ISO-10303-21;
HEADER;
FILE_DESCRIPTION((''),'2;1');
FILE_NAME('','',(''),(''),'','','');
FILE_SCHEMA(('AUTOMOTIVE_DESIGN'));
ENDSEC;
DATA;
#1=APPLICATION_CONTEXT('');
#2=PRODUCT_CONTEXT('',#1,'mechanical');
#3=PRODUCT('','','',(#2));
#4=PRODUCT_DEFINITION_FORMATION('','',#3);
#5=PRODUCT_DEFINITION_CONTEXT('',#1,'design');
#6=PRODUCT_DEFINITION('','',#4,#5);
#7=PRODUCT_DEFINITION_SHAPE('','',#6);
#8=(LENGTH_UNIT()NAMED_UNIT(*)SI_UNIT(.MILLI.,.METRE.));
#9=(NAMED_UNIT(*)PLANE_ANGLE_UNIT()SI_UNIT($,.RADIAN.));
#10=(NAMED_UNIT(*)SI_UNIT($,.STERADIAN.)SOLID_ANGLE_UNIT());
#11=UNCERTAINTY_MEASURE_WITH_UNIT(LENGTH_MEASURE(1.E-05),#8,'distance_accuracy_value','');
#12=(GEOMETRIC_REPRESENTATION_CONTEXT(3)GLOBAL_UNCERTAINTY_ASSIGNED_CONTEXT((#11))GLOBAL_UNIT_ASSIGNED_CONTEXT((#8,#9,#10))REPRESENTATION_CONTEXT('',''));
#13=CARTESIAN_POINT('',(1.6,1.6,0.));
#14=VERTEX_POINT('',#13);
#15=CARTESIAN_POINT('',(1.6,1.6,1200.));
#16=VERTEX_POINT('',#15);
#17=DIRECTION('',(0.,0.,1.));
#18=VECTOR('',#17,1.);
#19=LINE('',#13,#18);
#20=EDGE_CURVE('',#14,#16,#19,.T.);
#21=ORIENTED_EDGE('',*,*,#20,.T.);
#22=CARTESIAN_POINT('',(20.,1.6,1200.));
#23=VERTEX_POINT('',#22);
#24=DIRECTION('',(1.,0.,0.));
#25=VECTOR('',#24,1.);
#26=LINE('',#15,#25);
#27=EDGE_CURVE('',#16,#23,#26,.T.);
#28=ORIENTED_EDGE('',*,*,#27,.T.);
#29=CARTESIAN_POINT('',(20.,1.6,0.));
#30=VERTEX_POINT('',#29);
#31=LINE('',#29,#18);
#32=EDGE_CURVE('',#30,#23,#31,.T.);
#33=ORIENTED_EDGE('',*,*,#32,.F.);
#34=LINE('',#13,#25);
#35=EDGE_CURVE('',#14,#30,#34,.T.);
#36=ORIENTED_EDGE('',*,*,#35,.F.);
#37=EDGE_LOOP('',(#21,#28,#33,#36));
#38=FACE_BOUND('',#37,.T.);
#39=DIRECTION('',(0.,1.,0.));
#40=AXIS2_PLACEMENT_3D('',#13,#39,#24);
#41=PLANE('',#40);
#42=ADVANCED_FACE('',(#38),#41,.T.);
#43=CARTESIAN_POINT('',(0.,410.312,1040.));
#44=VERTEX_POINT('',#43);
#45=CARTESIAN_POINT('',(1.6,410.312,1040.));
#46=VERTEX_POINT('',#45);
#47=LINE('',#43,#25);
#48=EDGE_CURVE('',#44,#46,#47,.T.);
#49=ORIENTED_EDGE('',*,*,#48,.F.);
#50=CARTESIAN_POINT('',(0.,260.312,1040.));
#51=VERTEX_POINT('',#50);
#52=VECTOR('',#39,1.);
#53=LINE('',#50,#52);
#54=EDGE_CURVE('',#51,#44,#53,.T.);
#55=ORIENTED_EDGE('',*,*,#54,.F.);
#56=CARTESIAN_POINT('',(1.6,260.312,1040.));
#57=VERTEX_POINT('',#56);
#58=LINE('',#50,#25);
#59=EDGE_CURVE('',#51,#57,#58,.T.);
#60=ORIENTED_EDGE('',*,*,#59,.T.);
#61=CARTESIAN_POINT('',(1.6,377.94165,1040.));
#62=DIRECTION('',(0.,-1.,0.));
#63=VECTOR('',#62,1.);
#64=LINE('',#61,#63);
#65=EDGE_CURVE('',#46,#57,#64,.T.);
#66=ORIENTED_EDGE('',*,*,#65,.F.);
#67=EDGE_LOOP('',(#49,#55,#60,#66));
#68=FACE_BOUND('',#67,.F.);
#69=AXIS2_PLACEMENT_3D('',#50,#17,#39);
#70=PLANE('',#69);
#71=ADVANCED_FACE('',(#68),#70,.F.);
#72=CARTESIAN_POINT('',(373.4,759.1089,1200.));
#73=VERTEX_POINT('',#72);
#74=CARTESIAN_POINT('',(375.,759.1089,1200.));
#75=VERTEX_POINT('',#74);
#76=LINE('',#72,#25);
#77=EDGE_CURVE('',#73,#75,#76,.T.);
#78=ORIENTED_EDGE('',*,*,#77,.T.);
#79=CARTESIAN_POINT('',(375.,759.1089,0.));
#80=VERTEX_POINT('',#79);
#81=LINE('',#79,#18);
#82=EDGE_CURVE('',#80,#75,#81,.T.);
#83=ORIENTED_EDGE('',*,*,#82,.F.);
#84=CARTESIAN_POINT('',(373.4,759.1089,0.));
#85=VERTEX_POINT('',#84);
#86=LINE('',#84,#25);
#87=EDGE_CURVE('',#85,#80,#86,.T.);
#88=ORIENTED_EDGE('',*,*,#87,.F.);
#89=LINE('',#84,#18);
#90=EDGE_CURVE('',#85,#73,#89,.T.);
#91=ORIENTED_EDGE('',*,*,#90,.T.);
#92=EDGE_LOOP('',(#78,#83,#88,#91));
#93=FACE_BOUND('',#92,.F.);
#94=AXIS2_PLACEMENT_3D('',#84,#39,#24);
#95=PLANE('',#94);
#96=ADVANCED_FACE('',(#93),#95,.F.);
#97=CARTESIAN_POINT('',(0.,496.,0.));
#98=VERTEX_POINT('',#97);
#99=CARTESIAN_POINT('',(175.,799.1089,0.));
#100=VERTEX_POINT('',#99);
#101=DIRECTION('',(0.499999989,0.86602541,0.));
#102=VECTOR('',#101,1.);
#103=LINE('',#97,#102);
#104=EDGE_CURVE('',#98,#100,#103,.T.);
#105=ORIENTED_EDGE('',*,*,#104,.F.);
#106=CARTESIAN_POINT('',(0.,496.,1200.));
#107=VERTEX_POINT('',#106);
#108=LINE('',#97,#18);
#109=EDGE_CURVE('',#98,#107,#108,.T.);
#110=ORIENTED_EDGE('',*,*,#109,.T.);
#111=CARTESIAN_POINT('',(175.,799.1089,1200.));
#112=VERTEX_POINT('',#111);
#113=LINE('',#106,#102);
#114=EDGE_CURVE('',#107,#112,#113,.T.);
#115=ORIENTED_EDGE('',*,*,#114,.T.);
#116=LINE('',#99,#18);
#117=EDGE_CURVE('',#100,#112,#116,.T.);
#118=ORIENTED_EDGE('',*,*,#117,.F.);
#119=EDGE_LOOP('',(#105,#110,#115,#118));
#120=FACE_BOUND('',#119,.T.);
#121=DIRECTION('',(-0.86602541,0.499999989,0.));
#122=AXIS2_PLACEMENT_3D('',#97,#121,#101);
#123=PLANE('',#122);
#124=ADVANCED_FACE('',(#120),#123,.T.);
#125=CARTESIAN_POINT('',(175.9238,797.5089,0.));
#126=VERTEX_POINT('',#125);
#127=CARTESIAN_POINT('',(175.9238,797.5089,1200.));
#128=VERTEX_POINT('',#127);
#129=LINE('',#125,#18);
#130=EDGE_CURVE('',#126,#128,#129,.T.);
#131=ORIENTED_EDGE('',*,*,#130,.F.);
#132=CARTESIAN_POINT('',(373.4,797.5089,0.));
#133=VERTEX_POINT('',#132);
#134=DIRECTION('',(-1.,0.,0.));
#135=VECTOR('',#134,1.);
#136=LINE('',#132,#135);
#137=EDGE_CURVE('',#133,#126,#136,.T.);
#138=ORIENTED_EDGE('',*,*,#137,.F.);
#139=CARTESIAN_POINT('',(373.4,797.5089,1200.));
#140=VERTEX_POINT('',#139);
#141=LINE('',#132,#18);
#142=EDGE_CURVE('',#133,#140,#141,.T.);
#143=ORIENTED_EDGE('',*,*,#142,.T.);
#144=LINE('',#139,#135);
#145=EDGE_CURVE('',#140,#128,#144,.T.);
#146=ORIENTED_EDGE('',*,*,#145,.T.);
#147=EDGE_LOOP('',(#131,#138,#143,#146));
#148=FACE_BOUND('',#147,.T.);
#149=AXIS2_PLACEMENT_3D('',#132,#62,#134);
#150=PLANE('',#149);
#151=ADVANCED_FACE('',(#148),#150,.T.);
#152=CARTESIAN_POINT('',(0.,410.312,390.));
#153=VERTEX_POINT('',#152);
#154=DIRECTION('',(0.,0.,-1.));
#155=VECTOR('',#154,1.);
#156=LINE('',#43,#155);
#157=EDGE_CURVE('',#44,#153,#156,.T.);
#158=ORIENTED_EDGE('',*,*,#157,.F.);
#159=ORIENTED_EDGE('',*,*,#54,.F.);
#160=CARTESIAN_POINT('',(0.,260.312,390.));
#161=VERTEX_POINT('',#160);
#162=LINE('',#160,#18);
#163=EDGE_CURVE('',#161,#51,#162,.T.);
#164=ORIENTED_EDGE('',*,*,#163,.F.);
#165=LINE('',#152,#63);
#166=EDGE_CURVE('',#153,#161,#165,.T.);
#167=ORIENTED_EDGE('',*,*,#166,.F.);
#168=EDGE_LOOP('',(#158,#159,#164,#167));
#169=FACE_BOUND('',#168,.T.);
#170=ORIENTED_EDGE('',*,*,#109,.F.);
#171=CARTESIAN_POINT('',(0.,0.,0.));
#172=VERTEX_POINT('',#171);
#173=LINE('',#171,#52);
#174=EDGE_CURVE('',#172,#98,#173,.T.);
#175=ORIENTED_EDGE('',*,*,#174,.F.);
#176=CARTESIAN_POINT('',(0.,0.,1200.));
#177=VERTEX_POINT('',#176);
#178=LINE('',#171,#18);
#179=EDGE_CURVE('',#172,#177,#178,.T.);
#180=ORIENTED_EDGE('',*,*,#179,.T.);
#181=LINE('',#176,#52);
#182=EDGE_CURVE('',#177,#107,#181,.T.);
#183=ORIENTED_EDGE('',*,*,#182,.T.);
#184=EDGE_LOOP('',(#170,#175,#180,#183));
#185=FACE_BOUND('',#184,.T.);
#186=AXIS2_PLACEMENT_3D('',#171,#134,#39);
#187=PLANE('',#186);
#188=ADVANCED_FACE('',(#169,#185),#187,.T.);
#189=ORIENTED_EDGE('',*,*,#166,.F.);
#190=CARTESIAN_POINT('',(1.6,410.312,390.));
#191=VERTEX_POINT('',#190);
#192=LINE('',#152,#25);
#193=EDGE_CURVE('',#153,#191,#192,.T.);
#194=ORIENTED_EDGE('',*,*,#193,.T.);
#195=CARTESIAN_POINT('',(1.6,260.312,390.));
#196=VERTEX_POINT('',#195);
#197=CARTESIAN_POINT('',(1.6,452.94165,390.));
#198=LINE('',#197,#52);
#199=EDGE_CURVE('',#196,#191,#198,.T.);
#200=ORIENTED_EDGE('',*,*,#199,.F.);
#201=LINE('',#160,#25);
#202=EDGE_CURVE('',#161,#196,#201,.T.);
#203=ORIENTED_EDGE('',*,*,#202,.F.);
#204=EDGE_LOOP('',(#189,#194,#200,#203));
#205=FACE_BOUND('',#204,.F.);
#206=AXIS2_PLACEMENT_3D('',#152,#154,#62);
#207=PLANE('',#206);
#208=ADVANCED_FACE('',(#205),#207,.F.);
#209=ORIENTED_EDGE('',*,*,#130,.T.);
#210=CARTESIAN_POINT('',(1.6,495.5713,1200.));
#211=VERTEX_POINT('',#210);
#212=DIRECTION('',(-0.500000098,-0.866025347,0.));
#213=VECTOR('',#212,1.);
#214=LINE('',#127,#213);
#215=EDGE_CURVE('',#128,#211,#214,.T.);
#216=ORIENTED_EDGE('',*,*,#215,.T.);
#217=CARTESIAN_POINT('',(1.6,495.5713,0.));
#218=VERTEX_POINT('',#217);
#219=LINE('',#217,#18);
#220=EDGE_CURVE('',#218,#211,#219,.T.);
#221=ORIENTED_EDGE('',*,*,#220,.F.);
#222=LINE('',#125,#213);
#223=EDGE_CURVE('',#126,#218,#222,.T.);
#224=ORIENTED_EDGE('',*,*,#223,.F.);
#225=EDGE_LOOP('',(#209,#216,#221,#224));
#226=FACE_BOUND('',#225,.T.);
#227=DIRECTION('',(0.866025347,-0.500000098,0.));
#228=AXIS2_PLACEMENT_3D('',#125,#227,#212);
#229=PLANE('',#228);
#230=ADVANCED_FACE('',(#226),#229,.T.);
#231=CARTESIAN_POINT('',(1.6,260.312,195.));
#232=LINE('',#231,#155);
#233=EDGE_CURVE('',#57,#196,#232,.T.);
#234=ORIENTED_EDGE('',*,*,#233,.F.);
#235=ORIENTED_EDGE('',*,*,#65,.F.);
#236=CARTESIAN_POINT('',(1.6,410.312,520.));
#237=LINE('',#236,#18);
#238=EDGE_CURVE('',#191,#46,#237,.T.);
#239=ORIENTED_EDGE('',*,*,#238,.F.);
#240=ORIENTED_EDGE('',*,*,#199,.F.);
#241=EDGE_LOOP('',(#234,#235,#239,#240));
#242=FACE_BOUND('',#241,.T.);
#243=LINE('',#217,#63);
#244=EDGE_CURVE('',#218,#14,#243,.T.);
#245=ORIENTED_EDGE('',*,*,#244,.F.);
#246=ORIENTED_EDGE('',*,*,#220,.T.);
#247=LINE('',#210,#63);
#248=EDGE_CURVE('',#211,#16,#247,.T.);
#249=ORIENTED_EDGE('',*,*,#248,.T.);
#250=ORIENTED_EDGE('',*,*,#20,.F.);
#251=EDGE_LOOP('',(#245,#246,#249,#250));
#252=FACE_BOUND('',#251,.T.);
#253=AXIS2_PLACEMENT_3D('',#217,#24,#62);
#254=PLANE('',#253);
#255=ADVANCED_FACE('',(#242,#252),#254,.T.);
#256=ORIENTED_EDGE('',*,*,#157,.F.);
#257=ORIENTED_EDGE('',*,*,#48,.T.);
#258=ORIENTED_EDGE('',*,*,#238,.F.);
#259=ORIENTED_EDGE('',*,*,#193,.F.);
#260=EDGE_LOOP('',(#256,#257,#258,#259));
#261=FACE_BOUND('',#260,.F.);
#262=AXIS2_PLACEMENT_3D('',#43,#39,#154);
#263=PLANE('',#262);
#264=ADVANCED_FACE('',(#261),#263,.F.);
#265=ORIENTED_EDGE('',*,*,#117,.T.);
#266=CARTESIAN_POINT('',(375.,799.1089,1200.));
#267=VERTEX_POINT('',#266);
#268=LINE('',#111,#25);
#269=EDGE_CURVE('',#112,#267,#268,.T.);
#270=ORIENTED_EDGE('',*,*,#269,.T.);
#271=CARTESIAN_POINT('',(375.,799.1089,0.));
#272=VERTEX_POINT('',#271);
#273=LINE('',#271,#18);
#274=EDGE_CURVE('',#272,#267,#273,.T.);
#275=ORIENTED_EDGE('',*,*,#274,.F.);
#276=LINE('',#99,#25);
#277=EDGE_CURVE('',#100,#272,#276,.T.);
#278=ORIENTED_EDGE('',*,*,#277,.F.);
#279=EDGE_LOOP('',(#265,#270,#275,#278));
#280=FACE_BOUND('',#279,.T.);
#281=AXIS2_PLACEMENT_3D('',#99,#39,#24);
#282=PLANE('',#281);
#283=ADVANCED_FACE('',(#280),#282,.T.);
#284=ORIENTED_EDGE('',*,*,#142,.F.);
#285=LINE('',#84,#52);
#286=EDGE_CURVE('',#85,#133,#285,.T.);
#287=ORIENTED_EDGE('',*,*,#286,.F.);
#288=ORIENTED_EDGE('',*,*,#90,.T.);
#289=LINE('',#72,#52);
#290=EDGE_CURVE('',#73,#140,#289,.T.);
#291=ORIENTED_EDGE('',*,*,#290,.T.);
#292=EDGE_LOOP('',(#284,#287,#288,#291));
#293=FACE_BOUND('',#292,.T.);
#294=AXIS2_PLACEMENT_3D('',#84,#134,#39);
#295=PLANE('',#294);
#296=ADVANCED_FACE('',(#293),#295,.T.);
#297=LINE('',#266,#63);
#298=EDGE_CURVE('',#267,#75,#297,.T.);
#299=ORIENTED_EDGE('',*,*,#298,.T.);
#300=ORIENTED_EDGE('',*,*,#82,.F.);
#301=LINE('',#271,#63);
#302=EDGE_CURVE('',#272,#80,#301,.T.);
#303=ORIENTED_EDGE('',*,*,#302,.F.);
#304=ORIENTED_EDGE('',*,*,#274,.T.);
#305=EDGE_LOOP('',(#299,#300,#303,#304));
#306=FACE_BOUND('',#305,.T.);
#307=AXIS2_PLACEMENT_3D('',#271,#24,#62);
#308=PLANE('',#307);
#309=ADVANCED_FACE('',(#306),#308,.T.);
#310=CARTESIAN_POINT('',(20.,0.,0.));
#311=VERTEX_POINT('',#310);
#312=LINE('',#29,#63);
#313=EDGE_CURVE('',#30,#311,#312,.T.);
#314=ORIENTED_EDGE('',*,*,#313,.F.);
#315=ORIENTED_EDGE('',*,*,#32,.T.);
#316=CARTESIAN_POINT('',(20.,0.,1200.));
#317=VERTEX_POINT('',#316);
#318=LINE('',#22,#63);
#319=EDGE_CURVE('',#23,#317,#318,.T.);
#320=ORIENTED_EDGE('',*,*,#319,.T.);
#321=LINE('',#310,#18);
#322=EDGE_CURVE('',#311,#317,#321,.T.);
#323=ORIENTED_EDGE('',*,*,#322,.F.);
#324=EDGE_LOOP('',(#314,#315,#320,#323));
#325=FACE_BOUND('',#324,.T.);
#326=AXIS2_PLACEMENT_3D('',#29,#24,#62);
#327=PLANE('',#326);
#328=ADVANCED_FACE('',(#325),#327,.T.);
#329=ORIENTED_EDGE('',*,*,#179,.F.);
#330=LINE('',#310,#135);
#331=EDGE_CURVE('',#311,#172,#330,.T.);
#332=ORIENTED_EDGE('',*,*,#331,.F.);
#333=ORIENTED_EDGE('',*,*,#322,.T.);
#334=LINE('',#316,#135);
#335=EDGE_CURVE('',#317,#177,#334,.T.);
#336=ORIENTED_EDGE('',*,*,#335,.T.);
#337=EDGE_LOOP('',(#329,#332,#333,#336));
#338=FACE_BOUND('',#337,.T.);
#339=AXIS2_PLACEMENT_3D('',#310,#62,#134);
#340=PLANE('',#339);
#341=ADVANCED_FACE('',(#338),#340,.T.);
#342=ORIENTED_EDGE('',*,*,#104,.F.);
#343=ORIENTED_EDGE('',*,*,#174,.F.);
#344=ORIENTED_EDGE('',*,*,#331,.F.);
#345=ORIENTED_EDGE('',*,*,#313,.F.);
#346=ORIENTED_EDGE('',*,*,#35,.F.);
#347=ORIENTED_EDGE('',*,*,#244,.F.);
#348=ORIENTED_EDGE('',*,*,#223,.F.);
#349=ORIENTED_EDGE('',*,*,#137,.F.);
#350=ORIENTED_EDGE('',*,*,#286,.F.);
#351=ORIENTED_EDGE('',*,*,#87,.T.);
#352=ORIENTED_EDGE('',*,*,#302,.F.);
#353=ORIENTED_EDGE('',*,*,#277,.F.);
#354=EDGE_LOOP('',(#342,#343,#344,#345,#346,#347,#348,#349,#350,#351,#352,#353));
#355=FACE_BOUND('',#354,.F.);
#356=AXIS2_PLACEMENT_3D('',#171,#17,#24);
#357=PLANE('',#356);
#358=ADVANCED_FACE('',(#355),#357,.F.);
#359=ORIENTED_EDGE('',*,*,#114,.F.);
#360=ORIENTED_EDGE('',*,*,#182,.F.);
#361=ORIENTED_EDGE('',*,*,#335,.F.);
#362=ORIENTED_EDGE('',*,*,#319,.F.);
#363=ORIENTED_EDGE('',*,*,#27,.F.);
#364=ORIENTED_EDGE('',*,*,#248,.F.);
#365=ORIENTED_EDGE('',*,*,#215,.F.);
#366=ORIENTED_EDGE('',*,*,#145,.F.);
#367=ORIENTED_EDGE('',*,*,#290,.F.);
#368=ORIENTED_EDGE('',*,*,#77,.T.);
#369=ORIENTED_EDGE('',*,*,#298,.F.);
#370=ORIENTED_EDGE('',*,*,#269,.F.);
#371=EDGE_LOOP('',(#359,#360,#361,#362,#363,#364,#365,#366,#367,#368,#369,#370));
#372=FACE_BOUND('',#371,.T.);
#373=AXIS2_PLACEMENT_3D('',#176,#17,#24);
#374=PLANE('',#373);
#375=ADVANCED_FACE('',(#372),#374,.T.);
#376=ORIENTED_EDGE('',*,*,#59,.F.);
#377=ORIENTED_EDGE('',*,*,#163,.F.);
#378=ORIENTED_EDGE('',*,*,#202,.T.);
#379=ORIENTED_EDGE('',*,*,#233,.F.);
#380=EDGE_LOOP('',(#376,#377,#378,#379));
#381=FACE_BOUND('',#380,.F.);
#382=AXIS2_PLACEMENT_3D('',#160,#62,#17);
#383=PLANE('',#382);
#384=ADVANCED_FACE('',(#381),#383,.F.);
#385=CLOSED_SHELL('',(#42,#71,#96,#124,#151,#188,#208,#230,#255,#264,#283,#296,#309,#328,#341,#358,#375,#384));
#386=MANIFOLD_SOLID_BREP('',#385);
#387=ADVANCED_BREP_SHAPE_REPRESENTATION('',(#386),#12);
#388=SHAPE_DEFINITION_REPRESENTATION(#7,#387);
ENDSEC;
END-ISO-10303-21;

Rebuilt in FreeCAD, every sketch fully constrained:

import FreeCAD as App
import Part
import Sketcher

V = App.Vector
Q = App.Units.Quantity


def add_polygon(sketch, points):
    """Adds a closed chain of lines whose ends are joined by coincident constraints."""
    first, n = sketch.GeometryCount, len(points)
    for a, b in zip(points, points[1:] + points[:1]):
        sketch.addGeometry(Part.LineSegment(App.Vector(*a, 0), App.Vector(*b, 0)), False)
    for i in range(n):
        sketch.addConstraint(Sketcher.Constraint("Coincident", first + i, 2, first + (i + 1) % n, 1))

doc = App.newDocument("Part")
body = doc.addObject("PartDesign::Body", "Body")

# Sketch on XY plane
sketch1 = body.newObject("Sketcher::SketchObject", "Sketch")
sketch1.AttachmentSupport = (doc.getObject("XY_Plane"), [""])
sketch1.MapMode = "FlatFace"
add_polygon(sketch1, [(0, 0), (20, 0), (20, 1.6), (1.6, 1.6), (1.6, 495.5713), (175.9238, 797.5089), (373.4, 797.5089), (373.4, 759.1089), (375, 759.1089), (375, 799.1089), (175, 799.1089), (0, 496)])  # lines 0-11
sketch1.addConstraint([
    Sketcher.Constraint("Horizontal", 0),
    Sketcher.Constraint("Vertical", 1),
    Sketcher.Constraint("Horizontal", 2),
    Sketcher.Constraint("Vertical", 3),
    Sketcher.Constraint("Horizontal", 5),
    Sketcher.Constraint("Vertical", 6),
    Sketcher.Constraint("Horizontal", 7),
    Sketcher.Constraint("Vertical", 8),
    Sketcher.Constraint("Horizontal", 9),
    Sketcher.Constraint("Vertical", 11),
    Sketcher.Constraint("Coincident", 11, 2, -1, 1),
    Sketcher.Constraint("Parallel", 4, 10),
    Sketcher.Constraint("Equal", 7, 1),
    Sketcher.Constraint("DistanceX", 0, 1, 0, 2, Q("20 mm")),
    Sketcher.Constraint("DistanceX", 9, 2, 9, 1, Q("200 mm")),
    Sketcher.Constraint("DistanceY", 8, 1, 8, 2, Q("40 mm")),
    Sketcher.Constraint("DistanceY", 11, 2, 11, 1, Q("496 mm")),
    Sketcher.Constraint("Distance", 10, Q("350 mm")),
    Sketcher.Constraint("DistanceX", 7, 1, 7, 2, Q("1.6 mm")),
    Sketcher.Constraint("DistanceX", -1, 1, 2, 2, Q("1.6 mm")),
    Sketcher.Constraint("DistanceY", 5, 2, 8, 2, Q("1.6 mm")),
    Sketcher.Constraint("Angle", 4, Q("60 deg")),
    Sketcher.Constraint("DistanceX", 5, 1, 5, 2, Q("197.4762 mm")),
])
pad1 = body.newObject("PartDesign::Pad", "Pad")
pad1.Profile = sketch1
pad1.Length = 1200

# Sketch on YZ plane
sketch2 = body.newObject("Sketcher::SketchObject", "Sketch001")
sketch2.AttachmentSupport = (doc.getObject("YZ_Plane"), [""])
sketch2.MapMode = "FlatFace"
add_polygon(sketch2, [(260.312, 1040), (410.312, 1040), (410.312, 390), (260.312, 390)])  # lines 0-3
sketch2.addConstraint([
    Sketcher.Constraint("Horizontal", 0),
    Sketcher.Constraint("Vertical", 1),
    Sketcher.Constraint("Horizontal", 2),
    Sketcher.Constraint("Vertical", 3),
    Sketcher.Constraint("DistanceY", 1, 2, 1, 1, Q("650 mm")),
    Sketcher.Constraint("DistanceX", 0, 1, 0, 2, Q("150 mm")),
    Sketcher.Constraint("DistanceY", -1, 1, 0, 2, Q("1040 mm")),
    Sketcher.Constraint("DistanceX", -1, 1, 0, 2, Q("410.312 mm")),
])
pocket1 = body.newObject("PartDesign::Pocket", "Pocket")
pocket1.Profile = sketch2
pocket1.Length = 25.5
pocket1.Reversed = True

doc.recompute()
